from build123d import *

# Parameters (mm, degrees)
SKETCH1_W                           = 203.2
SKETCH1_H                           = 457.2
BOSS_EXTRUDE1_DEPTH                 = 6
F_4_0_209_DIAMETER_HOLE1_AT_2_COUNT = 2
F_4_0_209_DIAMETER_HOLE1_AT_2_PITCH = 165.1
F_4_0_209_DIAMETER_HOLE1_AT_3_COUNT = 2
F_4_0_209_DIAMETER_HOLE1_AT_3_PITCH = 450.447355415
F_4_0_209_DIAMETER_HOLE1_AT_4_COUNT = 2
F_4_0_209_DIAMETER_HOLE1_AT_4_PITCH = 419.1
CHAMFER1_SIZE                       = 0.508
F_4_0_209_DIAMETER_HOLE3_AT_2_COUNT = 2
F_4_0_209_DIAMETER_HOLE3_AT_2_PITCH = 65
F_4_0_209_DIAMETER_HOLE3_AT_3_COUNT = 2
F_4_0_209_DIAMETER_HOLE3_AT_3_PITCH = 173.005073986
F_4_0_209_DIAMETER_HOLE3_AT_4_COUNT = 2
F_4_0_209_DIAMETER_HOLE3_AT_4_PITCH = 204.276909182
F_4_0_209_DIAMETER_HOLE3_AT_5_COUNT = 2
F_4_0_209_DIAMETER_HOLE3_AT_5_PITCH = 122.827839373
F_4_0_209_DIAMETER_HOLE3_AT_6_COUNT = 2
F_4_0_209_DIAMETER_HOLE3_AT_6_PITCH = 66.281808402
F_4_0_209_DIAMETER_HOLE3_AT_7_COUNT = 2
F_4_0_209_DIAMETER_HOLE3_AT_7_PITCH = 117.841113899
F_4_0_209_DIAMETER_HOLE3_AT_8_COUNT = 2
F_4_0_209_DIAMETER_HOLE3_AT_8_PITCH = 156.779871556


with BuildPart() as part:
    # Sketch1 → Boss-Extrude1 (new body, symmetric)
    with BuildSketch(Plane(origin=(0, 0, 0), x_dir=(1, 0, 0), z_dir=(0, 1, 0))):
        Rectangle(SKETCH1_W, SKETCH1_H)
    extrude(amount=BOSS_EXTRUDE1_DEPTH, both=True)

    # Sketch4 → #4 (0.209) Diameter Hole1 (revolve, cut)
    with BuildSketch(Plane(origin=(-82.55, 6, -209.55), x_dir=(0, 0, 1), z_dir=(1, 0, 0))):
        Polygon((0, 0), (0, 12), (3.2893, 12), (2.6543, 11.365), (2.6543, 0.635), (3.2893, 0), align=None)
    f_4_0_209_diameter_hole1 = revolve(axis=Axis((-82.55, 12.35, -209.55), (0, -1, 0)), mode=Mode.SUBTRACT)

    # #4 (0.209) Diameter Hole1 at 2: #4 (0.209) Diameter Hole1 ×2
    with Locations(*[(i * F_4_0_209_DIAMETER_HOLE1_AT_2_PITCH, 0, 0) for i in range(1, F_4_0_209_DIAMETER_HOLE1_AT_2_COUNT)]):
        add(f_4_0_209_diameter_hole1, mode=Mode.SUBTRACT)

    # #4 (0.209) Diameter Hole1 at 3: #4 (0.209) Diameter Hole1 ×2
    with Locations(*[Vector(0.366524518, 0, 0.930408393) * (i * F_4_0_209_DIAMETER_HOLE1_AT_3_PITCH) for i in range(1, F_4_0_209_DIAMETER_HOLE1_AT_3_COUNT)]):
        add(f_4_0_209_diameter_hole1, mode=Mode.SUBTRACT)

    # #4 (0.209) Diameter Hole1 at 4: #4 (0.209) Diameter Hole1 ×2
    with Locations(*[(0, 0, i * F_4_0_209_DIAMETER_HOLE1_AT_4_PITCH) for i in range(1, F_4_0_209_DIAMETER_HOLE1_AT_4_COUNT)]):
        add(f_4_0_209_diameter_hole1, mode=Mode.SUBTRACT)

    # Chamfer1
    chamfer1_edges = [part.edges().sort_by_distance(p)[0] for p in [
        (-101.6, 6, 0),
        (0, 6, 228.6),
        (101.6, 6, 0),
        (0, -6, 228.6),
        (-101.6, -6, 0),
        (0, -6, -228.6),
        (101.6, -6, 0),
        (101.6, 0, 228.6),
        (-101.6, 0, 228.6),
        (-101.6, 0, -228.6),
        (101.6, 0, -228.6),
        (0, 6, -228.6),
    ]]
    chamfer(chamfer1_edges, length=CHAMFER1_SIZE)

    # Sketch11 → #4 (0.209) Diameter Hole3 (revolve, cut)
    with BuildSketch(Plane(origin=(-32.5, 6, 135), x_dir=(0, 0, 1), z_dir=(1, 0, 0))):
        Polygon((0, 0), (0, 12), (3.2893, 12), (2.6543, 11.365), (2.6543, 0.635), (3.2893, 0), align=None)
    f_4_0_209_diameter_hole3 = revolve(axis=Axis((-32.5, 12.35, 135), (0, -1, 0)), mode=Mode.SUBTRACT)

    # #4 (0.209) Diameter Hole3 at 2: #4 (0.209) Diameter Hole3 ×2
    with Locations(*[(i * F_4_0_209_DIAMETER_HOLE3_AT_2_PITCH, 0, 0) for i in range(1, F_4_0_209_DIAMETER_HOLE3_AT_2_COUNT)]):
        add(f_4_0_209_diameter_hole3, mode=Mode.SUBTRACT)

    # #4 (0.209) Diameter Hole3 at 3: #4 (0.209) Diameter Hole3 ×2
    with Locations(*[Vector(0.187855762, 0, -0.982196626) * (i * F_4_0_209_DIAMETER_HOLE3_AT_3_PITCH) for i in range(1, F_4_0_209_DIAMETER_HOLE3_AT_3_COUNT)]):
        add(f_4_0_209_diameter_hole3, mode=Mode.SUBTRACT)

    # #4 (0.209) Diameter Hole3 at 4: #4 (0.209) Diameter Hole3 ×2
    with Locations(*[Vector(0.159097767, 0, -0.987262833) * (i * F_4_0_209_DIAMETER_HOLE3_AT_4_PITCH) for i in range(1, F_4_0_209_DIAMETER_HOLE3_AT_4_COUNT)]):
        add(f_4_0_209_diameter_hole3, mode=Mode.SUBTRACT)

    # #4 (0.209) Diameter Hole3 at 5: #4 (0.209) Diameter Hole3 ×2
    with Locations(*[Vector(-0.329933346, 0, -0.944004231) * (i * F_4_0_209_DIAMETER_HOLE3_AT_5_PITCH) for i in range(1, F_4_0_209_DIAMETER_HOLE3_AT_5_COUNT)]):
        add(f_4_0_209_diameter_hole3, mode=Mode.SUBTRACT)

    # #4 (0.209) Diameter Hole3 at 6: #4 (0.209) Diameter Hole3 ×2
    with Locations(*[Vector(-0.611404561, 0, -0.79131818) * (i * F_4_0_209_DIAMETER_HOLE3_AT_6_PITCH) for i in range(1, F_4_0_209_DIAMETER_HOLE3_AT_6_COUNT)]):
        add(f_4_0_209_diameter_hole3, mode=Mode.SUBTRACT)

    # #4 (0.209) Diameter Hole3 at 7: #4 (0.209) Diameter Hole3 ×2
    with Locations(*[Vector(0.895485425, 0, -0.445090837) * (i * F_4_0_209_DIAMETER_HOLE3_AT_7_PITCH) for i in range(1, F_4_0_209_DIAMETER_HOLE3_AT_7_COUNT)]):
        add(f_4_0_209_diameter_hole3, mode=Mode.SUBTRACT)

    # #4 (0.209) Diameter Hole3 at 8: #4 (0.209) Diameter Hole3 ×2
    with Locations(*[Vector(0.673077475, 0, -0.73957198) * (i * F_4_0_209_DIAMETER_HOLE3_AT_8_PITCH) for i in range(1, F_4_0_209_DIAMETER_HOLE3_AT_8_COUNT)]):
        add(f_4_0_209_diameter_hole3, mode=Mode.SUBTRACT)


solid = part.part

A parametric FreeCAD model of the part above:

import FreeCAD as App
import Part
import Sketcher
from FreeCAD import Vector
Q = App.Units.Quantity


def edges_at(feature, points):
    """Names of the edges that pass closest to the given points."""
    edges = feature.Shape.Edges
    near = lambda p: min(range(len(edges)), key=lambda i: edges[i].distToShape(Part.Vertex(*p))[0])
    return sorted({f"Edge{near(p) + 1}" for p in points})


def add_polygon(sketch, points):
    """Adds a closed chain of lines whose ends are joined by coincident constraints."""
    first, n = sketch.GeometryCount, len(points)
    for a, b in zip(points, points[1:] + points[:1]):
        sketch.addGeometry(Part.LineSegment(App.Vector(*a, 0), App.Vector(*b, 0)), False)
    for i in range(n):
        sketch.addConstraint(Sketcher.Constraint("Coincident", first + i, 2, first + (i + 1) % n, 1))

doc = App.newDocument("Part")
body = doc.addObject("PartDesign::Body", "Body")

sketch1 = body.newObject("Sketcher::SketchObject", "Sketch")
sketch1.AttachmentSupport = (doc.getObject("XZ_Plane"), [""])
sketch1.MapMode = "FlatFace"
add_polygon(sketch1, [(-101.6, -228.6), (-101.6, 228.6), (101.6, 228.6), (101.6, -228.6)])
sketch1.addConstraint([
    Sketcher.Constraint("Vertical", 0),
    Sketcher.Constraint("Horizontal", 1),
    Sketcher.Constraint("Vertical", 2),
    Sketcher.Constraint("Horizontal", 3),
    Sketcher.Constraint("Symmetric", 0, 2, 2, 2, -1, 1),
    Sketcher.Constraint("DistanceX", 1, 1, 1, 2, Q("8 in")),
    Sketcher.Constraint("DistanceY", 0, 1, 0, 2, Q("18 in")),
])
pad1 = body.newObject("PartDesign::Pad", "Pad")
pad1.Profile = sketch1
pad1.Length = 12
pad1.Midplane = True

sketch2 = body.newObject("Sketcher::SketchObject", "Sketch001")
sketch2.AttachmentSupport = (doc.getObject("YZ_Plane"), [""])
sketch2.MapMode = "FlatFace"
sketch2.AttachmentOffset = App.Placement(Vector(0, 0, -3.25 * 25.4), App.Rotation())
add_polygon(sketch2, [(-6, -209.55), (6, -209.55), (6, -206.2607), (5.365, -206.8957), (-5.365, -206.8957), (-6, -206.2607)])
sketch2.addGeometry(Part.LineSegment(Vector(6, -209.55, 0), Vector(-6, -209.55, 0)), True)
sketch2.addConstraint([
    Sketcher.Constraint("Horizontal", 0),
    Sketcher.Constraint("Vertical", 1),
    Sketcher.Constraint("Horizontal", 3),
    Sketcher.Constraint("Vertical", 5),
    Sketcher.Constraint("Horizontal", 6),
    Sketcher.Constraint("Coincident", 6, 1, 0, 2),
    Sketcher.Constraint("Symmetric", 1, 2, 4, 2, -2),
    Sketcher.Constraint("Perpendicular", 2, 4),
    Sketcher.Constraint("Vertical", 4, 2, 6, 2),
    Sketcher.Constraint("Equal", 2, 4),
    Sketcher.Constraint("DistanceY", 0, 2, -1, 1, Q("8.25 in")),
    Sketcher.Constraint("DistanceY", 1, 1, 1, 2, Q("0.1295 in")),
    Sketcher.Constraint("DistanceX", 2, 2, 1, 2, Q("0.025 in")),
    Sketcher.Constraint("DistanceX", 0, 1, 0, 2, 12.0),
])
groove = body.newObject("PartDesign::Groove", "Groove")
groove.Profile = sketch2
groove.ReferenceAxis = (sketch2, ["Axis0"])
groove.Angle = 360
doc.recompute()

linearpattern = body.newObject("PartDesign::LinearPattern", "LinearPattern")
linearpattern.Originals = [groove]
linearpattern.Direction = (doc.getObject("X_Axis"), [""])
linearpattern.Mode = "offset"
linearpattern.Offset = Q("6.5 in")
linearpattern.Occurrences = 2
body.Tip = linearpattern
doc.recompute()

datumline = body.newObject("PartDesign::Line", "DatumLine")
datumline.Placement = App.Placement(Vector(0, 0, 0), App.Rotation(Vector(0, 0, 1), Vector(0.366524518, 0, 0.930408393)))
linearpattern2 = body.newObject("PartDesign::LinearPattern", "LinearPattern001")
linearpattern2.Originals = [groove]
linearpattern2.Direction = (datumline, [""])
linearpattern2.Mode = "offset"
linearpattern2.Offset = 450.447355
linearpattern2.Occurrences = 2
body.Tip = linearpattern2
doc.recompute()

linearpattern3 = body.newObject("PartDesign::LinearPattern", "LinearPattern002")
linearpattern3.Originals = [groove]
linearpattern3.Direction = (doc.getObject("Z_Axis"), [""])
linearpattern3.Mode = "offset"
linearpattern3.Offset = Q("16.5 in")
linearpattern3.Occurrences = 2
body.Tip = linearpattern3
doc.recompute()

chamfer = body.newObject("PartDesign::Chamfer", "Chamfer")
chamfer.Base = (linearpattern3, edges_at(linearpattern3, [
    (-101.6, 6, 0),
    (0, 6, 228.6),
    (101.6, 6, 0),
    (0, -6, 228.6),
    (-101.6, -6, 0),
    (0, -6, -228.6),
    (101.6, -6, 0),
    (101.6, 0, 228.6),
    (-101.6, 0, 228.6),
    (-101.6, 0, -228.6),
    (101.6, 0, -228.6),
    (0, 6, -228.6),
]))
chamfer.Size = Q("0.02 in")

sketch3 = body.newObject("Sketcher::SketchObject", "Sketch002")
sketch3.AttachmentSupport = (doc.getObject("YZ_Plane"), [""])
sketch3.MapMode = "FlatFace"
sketch3.AttachmentOffset = App.Placement(Vector(0, 0, -32.5), App.Rotation())
add_polygon(sketch3, [(-6, 135), (6, 135), (6, 138.2893), (5.365, 137.6543), (-5.365, 137.6543), (-6, 138.2893)])
sketch3.addGeometry(Part.LineSegment(Vector(6, 135, 0), Vector(-6, 135, 0)), True)
sketch3.addConstraint([
    Sketcher.Constraint("Horizontal", 0),
    Sketcher.Constraint("Vertical", 1),
    Sketcher.Constraint("Horizontal", 3),
    Sketcher.Constraint("Vertical", 5),
    Sketcher.Constraint("Horizontal", 6),
    Sketcher.Constraint("Coincident", 6, 1, 0, 2),
    Sketcher.Constraint("Symmetric", 1, 2, 4, 2, -2),
    Sketcher.Constraint("Perpendicular", 2, 4),
    Sketcher.Constraint("Vertical", 4, 2, 6, 2),
    Sketcher.Constraint("Equal", 2, 4),
    Sketcher.Constraint("DistanceY", 1, 1, 1, 2, Q("0.1295 in")),
    Sketcher.Constraint("DistanceX", 2, 2, 1, 2, Q("0.025 in")),
    Sketcher.Constraint("DistanceX", 0, 1, 0, 2, 12.0),
    Sketcher.Constraint("DistanceY", -1, 1, 0, 2, 135.0),
])
groove2 = body.newObject("PartDesign::Groove", "Groove001")
groove2.Profile = sketch3
groove2.ReferenceAxis = (sketch3, ["Axis0"])
groove2.Angle = 360
doc.recompute()

linearpattern4 = body.newObject("PartDesign::LinearPattern", "LinearPattern003")
linearpattern4.Originals = [groove2]
linearpattern4.Direction = (doc.getObject("X_Axis"), [""])
linearpattern4.Mode = "offset"
linearpattern4.Offset = 65
linearpattern4.Occurrences = 2
body.Tip = linearpattern4
doc.recompute()

datumline2 = body.newObject("PartDesign::Line", "DatumLine001")
datumline2.Placement = App.Placement(Vector(0, 0, 0), App.Rotation(Vector(0, 0, 1), Vector(0.187855762, 0, -0.982196626)))
linearpattern5 = body.newObject("PartDesign::LinearPattern", "LinearPattern004")
linearpattern5.Originals = [groove2]
linearpattern5.Direction = (datumline2, [""])
linearpattern5.Mode = "offset"
linearpattern5.Offset = 173.005074
linearpattern5.Occurrences = 2
body.Tip = linearpattern5
doc.recompute()

datumline3 = body.newObject("PartDesign::Line", "DatumLine002")
datumline3.Placement = App.Placement(Vector(0, 0, 0), App.Rotation(Vector(0, 0, 1), Vector(0.159097767, 0, -0.987262833)))
linearpattern6 = body.newObject("PartDesign::LinearPattern", "LinearPattern005")
linearpattern6.Originals = [groove2]
linearpattern6.Direction = (datumline3, [""])
linearpattern6.Mode = "offset"
linearpattern6.Offset = 204.276909
linearpattern6.Occurrences = 2
body.Tip = linearpattern6
doc.recompute()

datumline4 = body.newObject("PartDesign::Line", "DatumLine003")
datumline4.Placement = App.Placement(Vector(0, 0, 0), App.Rotation(Vector(0, 0, 1), Vector(-0.329933346, 0, -0.944004231)))
linearpattern7 = body.newObject("PartDesign::LinearPattern", "LinearPattern006")
linearpattern7.Originals = [groove2]
linearpattern7.Direction = (datumline4, [""])
linearpattern7.Mode = "offset"
linearpattern7.Offset = 122.827839
linearpattern7.Occurrences = 2
body.Tip = linearpattern7
doc.recompute()

datumline5 = body.newObject("PartDesign::Line", "DatumLine004")
datumline5.Placement = App.Placement(Vector(0, 0, 0), App.Rotation(Vector(0, 0, 1), Vector(-0.611404561, 0, -0.79131818)))
linearpattern8 = body.newObject("PartDesign::LinearPattern", "LinearPattern007")
linearpattern8.Originals = [groove2]
linearpattern8.Direction = (datumline5, [""])
linearpattern8.Mode = "offset"
linearpattern8.Offset = 66.281808
linearpattern8.Occurrences = 2
body.Tip = linearpattern8
doc.recompute()

datumline6 = body.newObject("PartDesign::Line", "DatumLine005")
datumline6.Placement = App.Placement(Vector(0, 0, 0), App.Rotation(Vector(0, 0, 1), Vector(0.895485425, 0, -0.445090837)))
linearpattern9 = body.newObject("PartDesign::LinearPattern", "LinearPattern008")
linearpattern9.Originals = [groove2]
linearpattern9.Direction = (datumline6, [""])
linearpattern9.Mode = "offset"
linearpattern9.Offset = 117.841114
linearpattern9.Occurrences = 2
body.Tip = linearpattern9
doc.recompute()

datumline7 = body.newObject("PartDesign::Line", "DatumLine006")
datumline7.Placement = App.Placement(Vector(0, 0, 0), App.Rotation(Vector(0, 0, 1), Vector(0.673077475, 0, -0.73957198)))
linearpattern10 = body.newObject("PartDesign::LinearPattern", "LinearPattern009")
linearpattern10.Originals = [groove2]
linearpattern10.Direction = (datumline7, [""])
linearpattern10.Mode = "offset"
linearpattern10.Offset = 156.779872
linearpattern10.Occurrences = 2
body.Tip = linearpattern10

doc.recompute()
